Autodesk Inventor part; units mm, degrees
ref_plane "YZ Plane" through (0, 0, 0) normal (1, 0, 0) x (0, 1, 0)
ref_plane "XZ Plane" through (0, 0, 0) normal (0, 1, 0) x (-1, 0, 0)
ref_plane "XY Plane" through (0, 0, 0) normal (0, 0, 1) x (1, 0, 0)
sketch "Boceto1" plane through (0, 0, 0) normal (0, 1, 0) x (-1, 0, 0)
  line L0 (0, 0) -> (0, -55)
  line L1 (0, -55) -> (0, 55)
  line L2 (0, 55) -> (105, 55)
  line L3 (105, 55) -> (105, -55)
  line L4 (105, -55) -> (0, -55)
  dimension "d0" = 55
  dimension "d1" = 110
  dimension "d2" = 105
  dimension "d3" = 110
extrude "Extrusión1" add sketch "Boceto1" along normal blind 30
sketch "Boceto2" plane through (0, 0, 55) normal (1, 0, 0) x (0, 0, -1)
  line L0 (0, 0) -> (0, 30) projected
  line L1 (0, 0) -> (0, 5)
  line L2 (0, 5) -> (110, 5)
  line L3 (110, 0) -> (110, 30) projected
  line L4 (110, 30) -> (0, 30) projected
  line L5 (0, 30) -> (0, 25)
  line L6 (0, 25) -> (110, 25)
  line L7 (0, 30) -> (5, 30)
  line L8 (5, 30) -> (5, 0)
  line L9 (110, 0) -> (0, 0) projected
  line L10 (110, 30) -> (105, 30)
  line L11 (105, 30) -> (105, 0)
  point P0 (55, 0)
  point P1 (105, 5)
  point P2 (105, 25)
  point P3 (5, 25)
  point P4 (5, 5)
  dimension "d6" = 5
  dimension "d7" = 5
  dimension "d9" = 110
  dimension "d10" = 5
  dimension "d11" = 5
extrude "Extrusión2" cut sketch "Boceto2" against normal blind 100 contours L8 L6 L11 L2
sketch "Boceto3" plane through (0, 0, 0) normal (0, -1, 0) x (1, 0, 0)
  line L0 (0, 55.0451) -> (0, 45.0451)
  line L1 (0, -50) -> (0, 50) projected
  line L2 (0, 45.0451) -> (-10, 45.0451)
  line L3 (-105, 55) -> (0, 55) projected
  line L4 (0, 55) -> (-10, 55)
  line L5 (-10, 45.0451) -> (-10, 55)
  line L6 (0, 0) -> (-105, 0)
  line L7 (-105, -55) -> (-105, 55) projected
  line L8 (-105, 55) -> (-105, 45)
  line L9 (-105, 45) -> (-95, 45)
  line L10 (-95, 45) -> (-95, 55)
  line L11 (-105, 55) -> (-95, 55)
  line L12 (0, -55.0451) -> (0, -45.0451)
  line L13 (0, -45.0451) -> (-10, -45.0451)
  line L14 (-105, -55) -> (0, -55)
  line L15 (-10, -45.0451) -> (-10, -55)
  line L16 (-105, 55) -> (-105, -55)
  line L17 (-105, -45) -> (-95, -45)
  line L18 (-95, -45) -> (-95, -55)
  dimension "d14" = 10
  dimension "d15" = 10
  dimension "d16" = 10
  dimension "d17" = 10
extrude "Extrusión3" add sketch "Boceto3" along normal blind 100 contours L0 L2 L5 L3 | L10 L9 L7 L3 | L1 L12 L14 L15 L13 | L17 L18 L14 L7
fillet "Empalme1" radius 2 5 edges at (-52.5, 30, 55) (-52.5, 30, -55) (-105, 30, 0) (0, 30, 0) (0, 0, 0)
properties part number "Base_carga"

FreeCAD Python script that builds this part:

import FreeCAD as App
import Part
import Sketcher
Q = App.Units.Quantity


def edges_at(feature, points):
    """Names of the edges that pass closest to the given points."""
    edges = feature.Shape.Edges
    near = lambda p: min(range(len(edges)), key=lambda i: edges[i].distToShape(Part.Vertex(*p))[0])
    return sorted({f"Edge{near(p) + 1}" for p in points})


def add_polygon(sketch, points):
    """Adds a closed chain of lines whose ends are joined by coincident constraints."""
    first, n = sketch.GeometryCount, len(points)
    for a, b in zip(points, points[1:] + points[:1]):
        sketch.addGeometry(Part.LineSegment(App.Vector(*a, 0), App.Vector(*b, 0)), False)
    for i in range(n):
        sketch.addConstraint(Sketcher.Constraint("Coincident", first + i, 2, first + (i + 1) % n, 1))

doc = App.newDocument("Part")
body = doc.addObject("PartDesign::Body", "Body")

sketch1 = body.newObject("Sketcher::SketchObject", "Sketch")
sketch1.AttachmentSupport = (doc.getObject("XZ_Plane"), [""])
sketch1.MapMode = "FlatFace"
add_polygon(sketch1, [(0, 55), (0, -55), (-105, -55), (-105, 55)])
sketch1.addConstraint([
    Sketcher.Constraint("Vertical", 0),
    Sketcher.Constraint("Horizontal", 1),
    Sketcher.Constraint("Vertical", 2),
    Sketcher.Constraint("Horizontal", 3),
    Sketcher.Constraint("Symmetric", 0, 2, 3, 2, -1, 1),
    Sketcher.Constraint("DistanceX", 1, 2, 1, 1, Q("105 mm")),
    Sketcher.Constraint("DistanceY", 0, 2, 0, 1, Q("110 mm")),
])
pad1 = body.newObject("PartDesign::Pad", "Pad")
pad1.Profile = sketch1
pad1.Length = 30
pad1.Reversed = True

sketch2 = body.newObject("Sketcher::SketchObject", "Sketch001")
sketch2.AttachmentSupport = (doc.getObject("YZ_Plane"), [""])
sketch2.MapMode = "FlatFace"
add_polygon(sketch2, [(25, 50), (5, 50), (5, -50), (25, -50)])
sketch2.addConstraint([
    Sketcher.Constraint("Horizontal", 0),
    Sketcher.Constraint("Vertical", 1),
    Sketcher.Constraint("Horizontal", 2),
    Sketcher.Constraint("Vertical", 3),
    Sketcher.Constraint("DistanceX", -1, 1, 0, 2, Q("5 mm")),
    Sketcher.Constraint("DistanceX", 0, 2, 0, 1, Q("20 mm")),
    Sketcher.Constraint("DistanceY", 1, 2, 1, 1, Q("100 mm")),
    Sketcher.Constraint("DistanceY", -1, 1, 0, 2, Q("50 mm")),
])
pocket1 = body.newObject("PartDesign::Pocket", "Pocket")
pocket1.Profile = sketch2
pocket1.Length = 100

sketch3 = body.newObject("Sketcher::SketchObject", "Sketch002")
sketch3.AttachmentSupport = (doc.getObject("XZ_Plane"), [""])
sketch3.MapMode = "FlatFace"
add_polygon(sketch3, [(0, 45), (0, 55), (-10, 55), (-10, 45)])
add_polygon(sketch3, [(-95, 45), (-95, 55), (-105, 55), (-105, 45)])
add_polygon(sketch3, [(0, -55), (0, -45), (-10, -45), (-10, -55)])
add_polygon(sketch3, [(-95, -45), (-105, -45), (-105, -55), (-95, -55)])
sketch3.addConstraint([
    Sketcher.Constraint("Vertical", 0),
    Sketcher.Constraint("Horizontal", 1),
    Sketcher.Constraint("Vertical", 2),
    Sketcher.Constraint("Horizontal", 3),
    Sketcher.Constraint("Vertical", 4),
    Sketcher.Constraint("Horizontal", 5),
    Sketcher.Constraint("Vertical", 6),
    Sketcher.Constraint("Horizontal", 7),
    Sketcher.Constraint("Vertical", 8),
    Sketcher.Constraint("Horizontal", 9),
    Sketcher.Constraint("Vertical", 10),
    Sketcher.Constraint("Horizontal", 11),
    Sketcher.Constraint("Horizontal", 12),
    Sketcher.Constraint("Vertical", 13),
    Sketcher.Constraint("Horizontal", 14),
    Sketcher.Constraint("Vertical", 15),
    Sketcher.Constraint("Symmetric", 3, 2, 8, 2, -1, 1),
    Sketcher.Constraint("Symmetric", 1, 2, 10, 2, -1),
    Sketcher.Constraint("Symmetric", 6, 2, 12, 2, -1),
    Sketcher.Constraint("Symmetric", 4, 2, 14, 2, -1),
    Sketcher.Constraint("PointOnObject", 0, 2, -2),
    Sketcher.Constraint("Horizontal", 1, 2, 4, 2),
    Sketcher.Constraint("Equal", 3, 5),
    Sketcher.Constraint("Equal", 14, 4),
    Sketcher.Constraint("DistanceX", 1, 2, 1, 1, Q("10 mm")),
    Sketcher.Constraint("DistanceY", -1, 1, 0, 2, Q("55 mm")),
    Sketcher.Constraint("DistanceX", 4, 2, -1, 1, Q("95 mm")),
    Sketcher.Constraint("DistanceY", 0, 1, 0, 2, Q("9.955 mm")),
])
pad2 = body.newObject("PartDesign::Pad", "Pad001")
pad2.Profile = sketch3
pad2.Length = 100
doc.recompute()

fillet = body.newObject("PartDesign::Fillet", "Fillet")
fillet.Base = (pad2, edges_at(pad2, [
    (-52.5, 30, 55),
    (-52.5, 30, -55),
    (-105, 30, 0),
    (0, 30, 0),
    (0, 0, 0),
]))
fillet.Radius = 2

doc.recompute()
